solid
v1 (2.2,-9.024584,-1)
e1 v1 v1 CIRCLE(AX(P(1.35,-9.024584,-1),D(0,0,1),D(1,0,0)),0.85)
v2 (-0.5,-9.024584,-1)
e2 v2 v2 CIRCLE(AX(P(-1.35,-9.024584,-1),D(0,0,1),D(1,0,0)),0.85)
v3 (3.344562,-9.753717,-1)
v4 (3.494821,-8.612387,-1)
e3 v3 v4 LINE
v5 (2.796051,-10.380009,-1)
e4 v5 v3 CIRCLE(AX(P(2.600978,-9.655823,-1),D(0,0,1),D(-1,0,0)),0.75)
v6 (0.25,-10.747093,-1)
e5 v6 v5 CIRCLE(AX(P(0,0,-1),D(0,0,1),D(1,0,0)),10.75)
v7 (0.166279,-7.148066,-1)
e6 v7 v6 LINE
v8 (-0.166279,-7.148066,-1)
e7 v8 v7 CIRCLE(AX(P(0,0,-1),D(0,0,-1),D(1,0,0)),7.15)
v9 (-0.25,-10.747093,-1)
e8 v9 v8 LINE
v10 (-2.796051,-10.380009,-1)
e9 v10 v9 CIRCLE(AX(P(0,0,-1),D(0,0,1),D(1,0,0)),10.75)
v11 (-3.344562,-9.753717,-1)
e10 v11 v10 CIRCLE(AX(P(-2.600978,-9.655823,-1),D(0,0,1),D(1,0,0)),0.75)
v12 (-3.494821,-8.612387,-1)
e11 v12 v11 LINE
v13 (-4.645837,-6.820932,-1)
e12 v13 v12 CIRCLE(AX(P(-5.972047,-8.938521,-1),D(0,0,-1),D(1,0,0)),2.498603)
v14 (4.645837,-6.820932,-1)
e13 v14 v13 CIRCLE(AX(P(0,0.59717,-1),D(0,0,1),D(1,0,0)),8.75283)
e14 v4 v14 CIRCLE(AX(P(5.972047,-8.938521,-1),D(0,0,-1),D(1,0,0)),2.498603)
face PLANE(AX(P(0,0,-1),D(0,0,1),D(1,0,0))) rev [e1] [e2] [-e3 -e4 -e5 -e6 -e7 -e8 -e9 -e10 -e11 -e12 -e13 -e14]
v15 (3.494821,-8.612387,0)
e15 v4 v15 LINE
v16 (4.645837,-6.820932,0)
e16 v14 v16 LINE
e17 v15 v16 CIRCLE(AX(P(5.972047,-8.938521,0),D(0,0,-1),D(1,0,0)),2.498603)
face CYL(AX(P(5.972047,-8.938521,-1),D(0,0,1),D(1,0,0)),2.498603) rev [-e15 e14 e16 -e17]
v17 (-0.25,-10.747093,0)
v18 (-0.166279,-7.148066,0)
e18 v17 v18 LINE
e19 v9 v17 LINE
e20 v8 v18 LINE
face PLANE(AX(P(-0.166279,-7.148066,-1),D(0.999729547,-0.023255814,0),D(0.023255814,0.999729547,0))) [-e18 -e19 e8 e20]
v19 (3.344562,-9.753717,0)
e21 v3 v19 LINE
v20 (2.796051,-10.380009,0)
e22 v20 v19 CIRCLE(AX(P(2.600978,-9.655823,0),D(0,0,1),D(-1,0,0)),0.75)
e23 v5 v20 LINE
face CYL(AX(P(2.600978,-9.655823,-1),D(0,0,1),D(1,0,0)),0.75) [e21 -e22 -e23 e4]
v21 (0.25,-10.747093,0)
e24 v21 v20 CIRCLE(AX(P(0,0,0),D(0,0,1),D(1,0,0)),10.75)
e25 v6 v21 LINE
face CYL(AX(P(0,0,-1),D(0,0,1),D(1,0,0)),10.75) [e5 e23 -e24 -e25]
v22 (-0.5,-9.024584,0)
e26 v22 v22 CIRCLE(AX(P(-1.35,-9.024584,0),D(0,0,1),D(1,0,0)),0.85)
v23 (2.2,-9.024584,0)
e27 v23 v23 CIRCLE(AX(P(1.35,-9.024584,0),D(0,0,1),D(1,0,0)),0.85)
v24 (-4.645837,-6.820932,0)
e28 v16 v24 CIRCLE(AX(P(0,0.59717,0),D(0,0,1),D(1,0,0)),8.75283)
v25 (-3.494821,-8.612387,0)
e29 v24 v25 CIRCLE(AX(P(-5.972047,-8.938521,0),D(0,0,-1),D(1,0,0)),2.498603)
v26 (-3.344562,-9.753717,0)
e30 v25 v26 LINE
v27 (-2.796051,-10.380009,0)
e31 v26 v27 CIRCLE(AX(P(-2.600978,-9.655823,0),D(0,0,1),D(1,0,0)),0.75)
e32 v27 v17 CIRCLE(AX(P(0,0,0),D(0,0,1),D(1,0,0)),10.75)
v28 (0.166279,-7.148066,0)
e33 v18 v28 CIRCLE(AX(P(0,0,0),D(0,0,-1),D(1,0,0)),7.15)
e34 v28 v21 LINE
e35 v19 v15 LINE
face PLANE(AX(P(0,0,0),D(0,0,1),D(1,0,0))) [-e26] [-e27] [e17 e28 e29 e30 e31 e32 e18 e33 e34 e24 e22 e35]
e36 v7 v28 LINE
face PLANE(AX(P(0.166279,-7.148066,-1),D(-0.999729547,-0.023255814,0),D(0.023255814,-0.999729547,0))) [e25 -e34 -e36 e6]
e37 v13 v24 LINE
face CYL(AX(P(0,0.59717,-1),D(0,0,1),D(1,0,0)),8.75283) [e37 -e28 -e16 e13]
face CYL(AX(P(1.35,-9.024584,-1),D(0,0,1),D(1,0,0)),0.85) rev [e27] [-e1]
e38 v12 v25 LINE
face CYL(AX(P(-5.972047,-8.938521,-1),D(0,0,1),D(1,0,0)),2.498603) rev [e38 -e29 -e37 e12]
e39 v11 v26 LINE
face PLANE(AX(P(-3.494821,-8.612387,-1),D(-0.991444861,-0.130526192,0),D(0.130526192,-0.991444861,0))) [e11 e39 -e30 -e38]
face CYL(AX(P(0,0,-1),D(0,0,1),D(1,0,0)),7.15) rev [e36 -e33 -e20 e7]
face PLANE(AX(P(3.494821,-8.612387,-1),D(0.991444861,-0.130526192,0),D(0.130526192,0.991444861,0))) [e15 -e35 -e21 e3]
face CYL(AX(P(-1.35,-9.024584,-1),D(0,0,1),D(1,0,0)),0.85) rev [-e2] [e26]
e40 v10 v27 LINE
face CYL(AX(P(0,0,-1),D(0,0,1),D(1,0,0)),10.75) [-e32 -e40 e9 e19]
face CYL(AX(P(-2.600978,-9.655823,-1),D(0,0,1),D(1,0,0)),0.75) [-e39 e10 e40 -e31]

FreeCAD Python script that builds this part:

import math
import FreeCAD as App
import Part
import Sketcher

V = App.Vector
Q = App.Units.Quantity

doc = App.newDocument("Part")
body = doc.addObject("PartDesign::Body", "Body")

sketch1 = doc.addObject("Sketcher::SketchObject", "Sketch")
body.addObject(sketch1)
sketch1.AttachmentSupport = (doc.XY_Plane, [""])
sketch1.MapMode = "FlatFace"
sketch1.addGeometry(Part.LineSegment(V(0.166279, -7.148066, 0), V(0.25, -10.747093, 0)), False)
sketch1.addGeometry(Part.ArcOfCircle(Part.Circle(V(0, 0, 0), V(0, 0, 1), 10.75), math.radians(-88.66742), math.radians(-74.924134)), False)
sketch1.addGeometry(Part.ArcOfCircle(Part.Circle(V(2.600978, -9.655823, 0), V(0, 0, 1), 0.75), math.radians(-74.924134), math.radians(-7.5)), False)
sketch1.addGeometry(Part.LineSegment(V(3.344562, -9.753717, 0), V(3.494821, -8.612387, 0)), False)
sketch1.addGeometry(Part.ArcOfCircle(Part.Circle(V(5.972047, -8.938521, 0), V(0, 0, 1), 2.498603), math.radians(122.058243), math.radians(172.5)), False)
sketch1.addGeometry(Part.ArcOfCircle(Part.Circle(V(0, 0.59717, 0), V(0, 0, 1), 8.75283), math.radians(-57.941757), math.radians(237.941757)), False)
sketch1.addGeometry(Part.ArcOfCircle(Part.Circle(V(-5.972047, -8.938521, 0), V(0, 0, 1), 2.498603), math.radians(7.5), math.radians(57.941757)), False)
sketch1.addGeometry(Part.LineSegment(V(-3.494821, -8.612387, 0), V(-3.344562, -9.753717, 0)), False)
sketch1.addGeometry(Part.ArcOfCircle(Part.Circle(V(-2.600978, -9.655823, 0), V(0, 0, 1), 0.75), math.radians(-172.5), math.radians(-105.075866)), False)
sketch1.addGeometry(Part.ArcOfCircle(Part.Circle(V(0, 0, 0), V(0, 0, 1), 10.75), math.radians(-105.075866), math.radians(-91.33258)), False)
sketch1.addGeometry(Part.LineSegment(V(-0.25, -10.747093, 0), V(-0.166279, -7.148066, 0)), False)
sketch1.addGeometry(Part.ArcOfCircle(Part.Circle(V(0, 0, 0), V(0, 0, 1), 7.15), math.radians(-88.66742), math.radians(268.66742)), False)
sketch1.addGeometry(Part.Circle(V(-1.35, -9.024584, 0), V(0, 0, 1), 0.85), False)
sketch1.addGeometry(Part.Circle(V(1.35, -9.024584, 0), V(0, 0, 1), 0.85), False)
sketch1.addConstraint(Sketcher.Constraint("Coincident", 0, 2, 1, 1))
sketch1.addConstraint(Sketcher.Constraint("Tangent", 1, 2, 2, 1))
sketch1.addConstraint(Sketcher.Constraint("Tangent", 2, 2, 3, 1))
sketch1.addConstraint(Sketcher.Constraint("Tangent", 3, 2, 4, 2))
sketch1.addConstraint(Sketcher.Constraint("Tangent", 4, 1, 5, 1))
sketch1.addConstraint(Sketcher.Constraint("Tangent", 5, 2, 6, 2))
sketch1.addConstraint(Sketcher.Constraint("Tangent", 6, 1, 7, 1))
sketch1.addConstraint(Sketcher.Constraint("Tangent", 7, 2, 8, 1))
sketch1.addConstraint(Sketcher.Constraint("Tangent", 8, 2, 9, 1))
sketch1.addConstraint(Sketcher.Constraint("Coincident", 9, 2, 10, 1))
sketch1.addConstraint(Sketcher.Constraint("Coincident", 10, 2, 11, 2))
sketch1.addConstraint(Sketcher.Constraint("Coincident", 11, 1, 0, 1))
sketch1.addConstraint(Sketcher.Constraint("Coincident", 1, 3, -1, 1))
sketch1.addConstraint(Sketcher.Constraint("Coincident", 9, 3, -1, 1))
sketch1.addConstraint(Sketcher.Constraint("Coincident", 11, 3, -1, 1))
sketch1.addConstraint(Sketcher.Constraint("Equal", 4, 6))
sketch1.addConstraint(Sketcher.Constraint("Equal", 2, 8))
sketch1.addConstraint(Sketcher.Constraint("Equal", 1, 9))
sketch1.addConstraint(Sketcher.Constraint("Equal", 12, 13))
sketch1.addConstraint(Sketcher.Constraint("Symmetric", 4, 3, 6, 3, -2))
sketch1.addConstraint(Sketcher.Constraint("Symmetric", 12, 3, 13, 3, -2))
sketch1.addConstraint(Sketcher.Constraint("Horizontal", 2, 3, 8, 3))
sketch1.addConstraint(Sketcher.Constraint("Horizontal", 0, 2, 9, 2))
sketch1.addConstraint(Sketcher.Constraint("Horizontal", 10, 2, 11, 1))
sketch1.addConstraint(Sketcher.Constraint("Diameter", 12, Q("1.7 mm")))
sketch1.addConstraint(Sketcher.Constraint("Radius", 1, Q("10.75 mm")))
sketch1.addConstraint(Sketcher.Constraint("Radius", 2, Q("0.75 mm")))
sketch1.addConstraint(Sketcher.Constraint("Radius", 11, Q("7.15 mm")))
sketch1.addConstraint(Sketcher.Constraint("Angle", 3, Q("82.5 deg")))
sketch1.addConstraint(Sketcher.Constraint("DistanceX", 12, 3, 13, 3, Q("2.7 mm")))
sketch1.addConstraint(Sketcher.Constraint("DistanceX", 0, 2, 13, 3, Q("1.1 mm")))
sketch1.addConstraint(Sketcher.Constraint("Radius", 5, Q("8.75283 mm")))
sketch1.addConstraint(Sketcher.Constraint("Radius", 4, Q("2.498603 mm")))
sketch1.addConstraint(Sketcher.Constraint("DistanceX", 8, 3, 10, 2, Q("2.434699 mm")))
sketch1.addConstraint(Sketcher.Constraint("Distance", 3, Q("1.151178 mm")))
sketch1.addConstraint(Sketcher.Constraint("DistanceX", -1, 1, 2, 3, Q("2.600978 mm")))
sketch1.addConstraint(Sketcher.Constraint("DistanceY", 8, 3, 12, 3, Q("0.631238 mm")))
pad1 = doc.addObject("PartDesign::Pad", "Pad")
body.addObject(pad1)
pad1.Profile = sketch1
pad1.Length = 1
pad1.Reversed = True

doc.recompute()
